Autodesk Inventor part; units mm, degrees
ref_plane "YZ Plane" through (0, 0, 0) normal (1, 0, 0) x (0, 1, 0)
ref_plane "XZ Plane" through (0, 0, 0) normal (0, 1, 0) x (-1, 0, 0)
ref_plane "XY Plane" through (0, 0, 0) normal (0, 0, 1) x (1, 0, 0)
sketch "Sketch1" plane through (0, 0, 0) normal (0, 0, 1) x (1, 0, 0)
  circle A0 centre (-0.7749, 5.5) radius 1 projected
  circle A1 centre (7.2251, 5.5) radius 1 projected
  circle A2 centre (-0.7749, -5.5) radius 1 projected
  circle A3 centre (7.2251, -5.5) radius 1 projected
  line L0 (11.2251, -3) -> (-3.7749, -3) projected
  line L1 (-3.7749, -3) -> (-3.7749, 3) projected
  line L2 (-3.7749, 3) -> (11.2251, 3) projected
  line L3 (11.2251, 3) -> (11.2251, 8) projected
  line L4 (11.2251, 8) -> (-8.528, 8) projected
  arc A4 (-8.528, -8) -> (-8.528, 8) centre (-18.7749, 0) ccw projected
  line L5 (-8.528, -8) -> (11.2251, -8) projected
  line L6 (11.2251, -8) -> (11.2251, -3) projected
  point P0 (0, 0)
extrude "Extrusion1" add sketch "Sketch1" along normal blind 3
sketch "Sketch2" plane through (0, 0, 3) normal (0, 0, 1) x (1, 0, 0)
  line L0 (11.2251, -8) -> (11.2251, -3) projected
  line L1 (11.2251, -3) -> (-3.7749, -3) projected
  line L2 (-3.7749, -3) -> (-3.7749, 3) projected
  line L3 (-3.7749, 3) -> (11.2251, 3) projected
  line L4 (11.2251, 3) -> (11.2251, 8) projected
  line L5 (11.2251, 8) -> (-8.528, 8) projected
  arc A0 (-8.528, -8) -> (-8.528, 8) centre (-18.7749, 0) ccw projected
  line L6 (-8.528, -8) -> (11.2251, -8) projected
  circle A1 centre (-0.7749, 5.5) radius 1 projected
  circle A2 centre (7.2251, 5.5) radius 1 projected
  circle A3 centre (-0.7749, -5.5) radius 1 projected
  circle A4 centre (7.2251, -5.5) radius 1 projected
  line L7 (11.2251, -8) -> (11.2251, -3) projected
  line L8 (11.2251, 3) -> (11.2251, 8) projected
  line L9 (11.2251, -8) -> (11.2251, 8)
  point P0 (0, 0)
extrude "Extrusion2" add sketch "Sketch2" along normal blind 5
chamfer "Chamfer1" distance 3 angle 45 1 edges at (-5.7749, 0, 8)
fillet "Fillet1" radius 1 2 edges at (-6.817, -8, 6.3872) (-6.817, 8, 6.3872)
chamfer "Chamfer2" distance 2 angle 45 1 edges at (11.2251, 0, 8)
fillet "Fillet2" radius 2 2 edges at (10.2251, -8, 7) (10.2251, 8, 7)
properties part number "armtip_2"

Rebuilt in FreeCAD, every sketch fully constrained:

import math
import FreeCAD as App
import Part
import Sketcher
from FreeCAD import Vector
Q = App.Units.Quantity


def edges_at(feature, points):
    """Names of the edges that pass closest to the given points."""
    edges = feature.Shape.Edges
    near = lambda p: min(range(len(edges)), key=lambda i: edges[i].distToShape(Part.Vertex(*p))[0])
    return sorted({f"Edge{near(p) + 1}" for p in points})

doc = App.newDocument("Part")
params = doc.addObject("Spreadsheet::Sheet", "Params")
for row, (alias, value) in enumerate([
    ("sketch1_diameter", "2 mm"),
    ("sketch1_radius", "13 mm"),
    ("sketch1_width", "15 mm"),
    ("sketch1_height", "5 mm"),
    ("sketch1_height2", "6 mm"),
    ("pad1_length", "3 mm"),
    ("sketch2_diameter", "2 mm"),
    ("sketch2_radius", "13 mm"),
    ("sketch2_height", "16 mm"),
    ("pad2_length", "5 mm"),
    ("chamfer_size", "3 mm"),
    ("fillet_radius", "1 mm"),
    ("chamfer2_size", "2 mm"),
    ("fillet2_radius", "2 mm"),
], start=1):
    params.set(f"A{row}", alias)
    params.set(f"B{row}", "=" + value)
    params.setAlias(f"B{row}", alias)

body = doc.addObject("PartDesign::Body", "Body")

sketch1 = body.newObject("Sketcher::SketchObject", "Sketch")
sketch1.AttachmentSupport = (doc.getObject("XY_Plane"), [""])
sketch1.MapMode = "FlatFace"
sketch1.addGeometry(Part.LineSegment(Vector(11.2, -8, 0), Vector(11.2, -3, 0)), False)
sketch1.addGeometry(Part.LineSegment(Vector(11.2, -3, 0), Vector(-3.8, -3, 0)), False)
sketch1.addGeometry(Part.LineSegment(Vector(-3.8, -3, 0), Vector(-3.8, 3, 0)), False)
sketch1.addGeometry(Part.LineSegment(Vector(-3.8, 3, 0), Vector(11.2, 3, 0)), False)
sketch1.addGeometry(Part.LineSegment(Vector(11.2, 3, 0), Vector(11.2, 8, 0)), False)
sketch1.addGeometry(Part.LineSegment(Vector(11.2, 8, 0), Vector(-8.5, 8, 0)), False)
sketch1.addGeometry(Part.ArcOfCircle(Part.Circle(Vector(-18.8, 0, 0), Vector(0, 0, 1), 13), math.radians(-38), math.radians(38)), False)
sketch1.addGeometry(Part.LineSegment(Vector(-8.5, -8, 0), Vector(11.2, -8, 0)), False)
sketch1.addGeometry(Part.Circle(Vector(-0.8, -5.5, 0), Vector(0, 0, 1), 1), False)
sketch1.addGeometry(Part.Circle(Vector(7.2, -5.5, 0), Vector(0, 0, 1), 1), False)
sketch1.addGeometry(Part.Circle(Vector(-0.8, 5.5, 0), Vector(0, 0, 1), 1), False)
sketch1.addGeometry(Part.Circle(Vector(7.2, 5.5, 0), Vector(0, 0, 1), 1), False)
sketch1.addConstraint(Sketcher.Constraint("Coincident", 0, 2, 1, 1))
sketch1.addConstraint(Sketcher.Constraint("Coincident", 1, 2, 2, 1))
sketch1.addConstraint(Sketcher.Constraint("Coincident", 2, 2, 3, 1))
sketch1.addConstraint(Sketcher.Constraint("Coincident", 3, 2, 4, 1))
sketch1.addConstraint(Sketcher.Constraint("Coincident", 4, 2, 5, 1))
sketch1.addConstraint(Sketcher.Constraint("Coincident", 5, 2, 6, 2))
sketch1.addConstraint(Sketcher.Constraint("Coincident", 6, 1, 7, 1))
sketch1.addConstraint(Sketcher.Constraint("Coincident", 7, 2, 0, 1))
sketch1.addConstraint(Sketcher.Constraint("Vertical", 0))
sketch1.addConstraint(Sketcher.Constraint("Horizontal", 1))
sketch1.addConstraint(Sketcher.Constraint("Vertical", 2))
sketch1.addConstraint(Sketcher.Constraint("Horizontal", 3))
sketch1.addConstraint(Sketcher.Constraint("Vertical", 4))
sketch1.addConstraint(Sketcher.Constraint("Horizontal", 5))
sketch1.addConstraint(Sketcher.Constraint("Horizontal", 7))
sketch1.addConstraint(Sketcher.Constraint("Equal", 8, 9))
sketch1.addConstraint(Sketcher.Constraint("Equal", 9, 10))
sketch1.addConstraint(Sketcher.Constraint("Equal", 10, 11))
sketch1.addConstraint(Sketcher.Constraint("Symmetric", 8, 3, 10, 3, -1))
sketch1.addConstraint(Sketcher.Constraint("Symmetric", 9, 3, 11, 3, -1))
sketch1.addConstraint(Sketcher.Constraint("Symmetric", 0, 2, 3, 2, -1))
sketch1.addConstraint(Sketcher.Constraint("Symmetric", 5, 2, 6, 1, -1))
sketch1.addConstraint(Sketcher.Constraint("Horizontal", 8, 3, 9, 3))
sketch1.addConstraint(Sketcher.Constraint("Diameter", 8, Q("2 mm")))
sketch1.addConstraint(Sketcher.Constraint("Radius", 6, Q("13 mm")))
sketch1.addConstraint(Sketcher.Constraint("DistanceX", 1, 2, 1, 1, Q("15 mm")))
sketch1.addConstraint(Sketcher.Constraint("DistanceY", 0, 1, 0, 2, Q("5 mm")))
sketch1.addConstraint(Sketcher.Constraint("DistanceY", 2, 1, 2, 2, Q("6 mm")))
sketch1.addConstraint(Sketcher.Constraint("DistanceX", 6, 3, 8, 3, Q("18 mm")))
sketch1.addConstraint(Sketcher.Constraint("DistanceX", 8, 3, 9, 3, Q("8 mm")))
sketch1.addConstraint(Sketcher.Constraint("DistanceY", 8, 3, 10, 3, Q("11 mm")))
sketch1.addConstraint(Sketcher.Constraint("DistanceX", 9, 3, 0, 2, Q("4 mm")))
sketch1.addConstraint(Sketcher.Constraint("DistanceX", 6, 3, -1, 1, Q("18.775 mm")))
sketch1.setExpression("Constraints[23]", "Params.sketch1_diameter")
sketch1.setExpression("Constraints[24]", "Params.sketch1_radius")
sketch1.setExpression("Constraints[25]", "Params.sketch1_width")
sketch1.setExpression("Constraints[26]", "Params.sketch1_height")
sketch1.setExpression("Constraints[27]", "Params.sketch1_height2")
pad1 = body.newObject("PartDesign::Pad", "Pad")
pad1.Profile = sketch1
pad1.setExpression("Length", "Params.pad1_length")

sketch2 = body.newObject("Sketcher::SketchObject", "Sketch001")
sketch2.AttachmentSupport = (doc.getObject("XY_Plane"), [""])
sketch2.MapMode = "FlatFace"
sketch2.AttachmentOffset = App.Placement(Vector(0, 0, 3), App.Rotation())
sketch2.addGeometry(Part.LineSegment(Vector(-8.5, -8, 0), Vector(11.2, -8, 0)), False)
sketch2.addGeometry(Part.LineSegment(Vector(11.2, -8, 0), Vector(11.2, 8, 0)), False)
sketch2.addGeometry(Part.LineSegment(Vector(11.2, 8, 0), Vector(-8.5, 8, 0)), False)
sketch2.addGeometry(Part.ArcOfCircle(Part.Circle(Vector(-18.8, 0, 0), Vector(0, 0, 1), 13), math.radians(-38), math.radians(38)), False)
sketch2.addGeometry(Part.Circle(Vector(-0.8, -5.5, 0), Vector(0, 0, 1), 1), False)
sketch2.addGeometry(Part.Circle(Vector(7.2, -5.5, 0), Vector(0, 0, 1), 1), False)
sketch2.addGeometry(Part.Circle(Vector(-0.8, 5.5, 0), Vector(0, 0, 1), 1), False)
sketch2.addGeometry(Part.Circle(Vector(7.2, 5.5, 0), Vector(0, 0, 1), 1), False)
sketch2.addConstraint(Sketcher.Constraint("Coincident", 0, 2, 1, 1))
sketch2.addConstraint(Sketcher.Constraint("Coincident", 1, 2, 2, 1))
sketch2.addConstraint(Sketcher.Constraint("Coincident", 2, 2, 3, 2))
sketch2.addConstraint(Sketcher.Constraint("Coincident", 3, 1, 0, 1))
sketch2.addConstraint(Sketcher.Constraint("Horizontal", 0))
sketch2.addConstraint(Sketcher.Constraint("Vertical", 1))
sketch2.addConstraint(Sketcher.Constraint("Horizontal", 2))
sketch2.addConstraint(Sketcher.Constraint("Equal", 4, 5))
sketch2.addConstraint(Sketcher.Constraint("Equal", 5, 6))
sketch2.addConstraint(Sketcher.Constraint("Equal", 6, 7))
sketch2.addConstraint(Sketcher.Constraint("Symmetric", 4, 3, 6, 3, -1))
sketch2.addConstraint(Sketcher.Constraint("Symmetric", 5, 3, 7, 3, -1))
sketch2.addConstraint(Sketcher.Constraint("Symmetric", 2, 2, 3, 1, -1))
sketch2.addConstraint(Sketcher.Constraint("Horizontal", 4, 3, 5, 3))
sketch2.addConstraint(Sketcher.Constraint("Diameter", 4, Q("2 mm")))
sketch2.addConstraint(Sketcher.Constraint("Radius", 3, Q("13 mm")))
sketch2.addConstraint(Sketcher.Constraint("DistanceY", 1, 1, 1, 2, Q("16 mm")))
sketch2.addConstraint(Sketcher.Constraint("DistanceX", 3, 3, 4, 3, Q("18 mm")))
sketch2.addConstraint(Sketcher.Constraint("DistanceX", 4, 3, 5, 3, Q("8 mm")))
sketch2.addConstraint(Sketcher.Constraint("DistanceY", 4, 3, 6, 3, Q("11 mm")))
sketch2.addConstraint(Sketcher.Constraint("DistanceX", 5, 3, 0, 2, Q("4 mm")))
sketch2.addConstraint(Sketcher.Constraint("DistanceX", 3, 3, -1, 1, Q("18.775 mm")))
sketch2.setExpression("Constraints[14]", "Params.sketch2_diameter")
sketch2.setExpression("Constraints[15]", "Params.sketch2_radius")
sketch2.setExpression("Constraints[16]", "Params.sketch2_height")
pad2 = body.newObject("PartDesign::Pad", "Pad001")
pad2.Profile = sketch2
pad2.setExpression("Length", "Params.pad2_length")
doc.recompute()

chamfer = body.newObject("PartDesign::Chamfer", "Chamfer")
chamfer.Base = (pad2, edges_at(pad2, [(-5.775, 0, 8)]))
chamfer.setExpression("Size", "Params.chamfer_size")
doc.recompute()

fillet = body.newObject("PartDesign::Fillet", "Fillet")
fillet.Base = (chamfer, edges_at(chamfer, [(-6.817, -8, 6.387), (-6.817, 8, 6.387)]))
fillet.setExpression("Radius", "Params.fillet_radius")
doc.recompute()

chamfer2 = body.newObject("PartDesign::Chamfer", "Chamfer001")
chamfer2.Base = (fillet, edges_at(fillet, [(11.225, 0, 8)]))
chamfer2.setExpression("Size", "Params.chamfer2_size")
doc.recompute()

fillet2 = body.newObject("PartDesign::Fillet", "Fillet001")
fillet2.Base = (chamfer2, edges_at(chamfer2, [(10.225, -8, 7), (10.225, 8, 7)]))
fillet2.setExpression("Radius", "Params.fillet2_radius")

doc.recompute()
